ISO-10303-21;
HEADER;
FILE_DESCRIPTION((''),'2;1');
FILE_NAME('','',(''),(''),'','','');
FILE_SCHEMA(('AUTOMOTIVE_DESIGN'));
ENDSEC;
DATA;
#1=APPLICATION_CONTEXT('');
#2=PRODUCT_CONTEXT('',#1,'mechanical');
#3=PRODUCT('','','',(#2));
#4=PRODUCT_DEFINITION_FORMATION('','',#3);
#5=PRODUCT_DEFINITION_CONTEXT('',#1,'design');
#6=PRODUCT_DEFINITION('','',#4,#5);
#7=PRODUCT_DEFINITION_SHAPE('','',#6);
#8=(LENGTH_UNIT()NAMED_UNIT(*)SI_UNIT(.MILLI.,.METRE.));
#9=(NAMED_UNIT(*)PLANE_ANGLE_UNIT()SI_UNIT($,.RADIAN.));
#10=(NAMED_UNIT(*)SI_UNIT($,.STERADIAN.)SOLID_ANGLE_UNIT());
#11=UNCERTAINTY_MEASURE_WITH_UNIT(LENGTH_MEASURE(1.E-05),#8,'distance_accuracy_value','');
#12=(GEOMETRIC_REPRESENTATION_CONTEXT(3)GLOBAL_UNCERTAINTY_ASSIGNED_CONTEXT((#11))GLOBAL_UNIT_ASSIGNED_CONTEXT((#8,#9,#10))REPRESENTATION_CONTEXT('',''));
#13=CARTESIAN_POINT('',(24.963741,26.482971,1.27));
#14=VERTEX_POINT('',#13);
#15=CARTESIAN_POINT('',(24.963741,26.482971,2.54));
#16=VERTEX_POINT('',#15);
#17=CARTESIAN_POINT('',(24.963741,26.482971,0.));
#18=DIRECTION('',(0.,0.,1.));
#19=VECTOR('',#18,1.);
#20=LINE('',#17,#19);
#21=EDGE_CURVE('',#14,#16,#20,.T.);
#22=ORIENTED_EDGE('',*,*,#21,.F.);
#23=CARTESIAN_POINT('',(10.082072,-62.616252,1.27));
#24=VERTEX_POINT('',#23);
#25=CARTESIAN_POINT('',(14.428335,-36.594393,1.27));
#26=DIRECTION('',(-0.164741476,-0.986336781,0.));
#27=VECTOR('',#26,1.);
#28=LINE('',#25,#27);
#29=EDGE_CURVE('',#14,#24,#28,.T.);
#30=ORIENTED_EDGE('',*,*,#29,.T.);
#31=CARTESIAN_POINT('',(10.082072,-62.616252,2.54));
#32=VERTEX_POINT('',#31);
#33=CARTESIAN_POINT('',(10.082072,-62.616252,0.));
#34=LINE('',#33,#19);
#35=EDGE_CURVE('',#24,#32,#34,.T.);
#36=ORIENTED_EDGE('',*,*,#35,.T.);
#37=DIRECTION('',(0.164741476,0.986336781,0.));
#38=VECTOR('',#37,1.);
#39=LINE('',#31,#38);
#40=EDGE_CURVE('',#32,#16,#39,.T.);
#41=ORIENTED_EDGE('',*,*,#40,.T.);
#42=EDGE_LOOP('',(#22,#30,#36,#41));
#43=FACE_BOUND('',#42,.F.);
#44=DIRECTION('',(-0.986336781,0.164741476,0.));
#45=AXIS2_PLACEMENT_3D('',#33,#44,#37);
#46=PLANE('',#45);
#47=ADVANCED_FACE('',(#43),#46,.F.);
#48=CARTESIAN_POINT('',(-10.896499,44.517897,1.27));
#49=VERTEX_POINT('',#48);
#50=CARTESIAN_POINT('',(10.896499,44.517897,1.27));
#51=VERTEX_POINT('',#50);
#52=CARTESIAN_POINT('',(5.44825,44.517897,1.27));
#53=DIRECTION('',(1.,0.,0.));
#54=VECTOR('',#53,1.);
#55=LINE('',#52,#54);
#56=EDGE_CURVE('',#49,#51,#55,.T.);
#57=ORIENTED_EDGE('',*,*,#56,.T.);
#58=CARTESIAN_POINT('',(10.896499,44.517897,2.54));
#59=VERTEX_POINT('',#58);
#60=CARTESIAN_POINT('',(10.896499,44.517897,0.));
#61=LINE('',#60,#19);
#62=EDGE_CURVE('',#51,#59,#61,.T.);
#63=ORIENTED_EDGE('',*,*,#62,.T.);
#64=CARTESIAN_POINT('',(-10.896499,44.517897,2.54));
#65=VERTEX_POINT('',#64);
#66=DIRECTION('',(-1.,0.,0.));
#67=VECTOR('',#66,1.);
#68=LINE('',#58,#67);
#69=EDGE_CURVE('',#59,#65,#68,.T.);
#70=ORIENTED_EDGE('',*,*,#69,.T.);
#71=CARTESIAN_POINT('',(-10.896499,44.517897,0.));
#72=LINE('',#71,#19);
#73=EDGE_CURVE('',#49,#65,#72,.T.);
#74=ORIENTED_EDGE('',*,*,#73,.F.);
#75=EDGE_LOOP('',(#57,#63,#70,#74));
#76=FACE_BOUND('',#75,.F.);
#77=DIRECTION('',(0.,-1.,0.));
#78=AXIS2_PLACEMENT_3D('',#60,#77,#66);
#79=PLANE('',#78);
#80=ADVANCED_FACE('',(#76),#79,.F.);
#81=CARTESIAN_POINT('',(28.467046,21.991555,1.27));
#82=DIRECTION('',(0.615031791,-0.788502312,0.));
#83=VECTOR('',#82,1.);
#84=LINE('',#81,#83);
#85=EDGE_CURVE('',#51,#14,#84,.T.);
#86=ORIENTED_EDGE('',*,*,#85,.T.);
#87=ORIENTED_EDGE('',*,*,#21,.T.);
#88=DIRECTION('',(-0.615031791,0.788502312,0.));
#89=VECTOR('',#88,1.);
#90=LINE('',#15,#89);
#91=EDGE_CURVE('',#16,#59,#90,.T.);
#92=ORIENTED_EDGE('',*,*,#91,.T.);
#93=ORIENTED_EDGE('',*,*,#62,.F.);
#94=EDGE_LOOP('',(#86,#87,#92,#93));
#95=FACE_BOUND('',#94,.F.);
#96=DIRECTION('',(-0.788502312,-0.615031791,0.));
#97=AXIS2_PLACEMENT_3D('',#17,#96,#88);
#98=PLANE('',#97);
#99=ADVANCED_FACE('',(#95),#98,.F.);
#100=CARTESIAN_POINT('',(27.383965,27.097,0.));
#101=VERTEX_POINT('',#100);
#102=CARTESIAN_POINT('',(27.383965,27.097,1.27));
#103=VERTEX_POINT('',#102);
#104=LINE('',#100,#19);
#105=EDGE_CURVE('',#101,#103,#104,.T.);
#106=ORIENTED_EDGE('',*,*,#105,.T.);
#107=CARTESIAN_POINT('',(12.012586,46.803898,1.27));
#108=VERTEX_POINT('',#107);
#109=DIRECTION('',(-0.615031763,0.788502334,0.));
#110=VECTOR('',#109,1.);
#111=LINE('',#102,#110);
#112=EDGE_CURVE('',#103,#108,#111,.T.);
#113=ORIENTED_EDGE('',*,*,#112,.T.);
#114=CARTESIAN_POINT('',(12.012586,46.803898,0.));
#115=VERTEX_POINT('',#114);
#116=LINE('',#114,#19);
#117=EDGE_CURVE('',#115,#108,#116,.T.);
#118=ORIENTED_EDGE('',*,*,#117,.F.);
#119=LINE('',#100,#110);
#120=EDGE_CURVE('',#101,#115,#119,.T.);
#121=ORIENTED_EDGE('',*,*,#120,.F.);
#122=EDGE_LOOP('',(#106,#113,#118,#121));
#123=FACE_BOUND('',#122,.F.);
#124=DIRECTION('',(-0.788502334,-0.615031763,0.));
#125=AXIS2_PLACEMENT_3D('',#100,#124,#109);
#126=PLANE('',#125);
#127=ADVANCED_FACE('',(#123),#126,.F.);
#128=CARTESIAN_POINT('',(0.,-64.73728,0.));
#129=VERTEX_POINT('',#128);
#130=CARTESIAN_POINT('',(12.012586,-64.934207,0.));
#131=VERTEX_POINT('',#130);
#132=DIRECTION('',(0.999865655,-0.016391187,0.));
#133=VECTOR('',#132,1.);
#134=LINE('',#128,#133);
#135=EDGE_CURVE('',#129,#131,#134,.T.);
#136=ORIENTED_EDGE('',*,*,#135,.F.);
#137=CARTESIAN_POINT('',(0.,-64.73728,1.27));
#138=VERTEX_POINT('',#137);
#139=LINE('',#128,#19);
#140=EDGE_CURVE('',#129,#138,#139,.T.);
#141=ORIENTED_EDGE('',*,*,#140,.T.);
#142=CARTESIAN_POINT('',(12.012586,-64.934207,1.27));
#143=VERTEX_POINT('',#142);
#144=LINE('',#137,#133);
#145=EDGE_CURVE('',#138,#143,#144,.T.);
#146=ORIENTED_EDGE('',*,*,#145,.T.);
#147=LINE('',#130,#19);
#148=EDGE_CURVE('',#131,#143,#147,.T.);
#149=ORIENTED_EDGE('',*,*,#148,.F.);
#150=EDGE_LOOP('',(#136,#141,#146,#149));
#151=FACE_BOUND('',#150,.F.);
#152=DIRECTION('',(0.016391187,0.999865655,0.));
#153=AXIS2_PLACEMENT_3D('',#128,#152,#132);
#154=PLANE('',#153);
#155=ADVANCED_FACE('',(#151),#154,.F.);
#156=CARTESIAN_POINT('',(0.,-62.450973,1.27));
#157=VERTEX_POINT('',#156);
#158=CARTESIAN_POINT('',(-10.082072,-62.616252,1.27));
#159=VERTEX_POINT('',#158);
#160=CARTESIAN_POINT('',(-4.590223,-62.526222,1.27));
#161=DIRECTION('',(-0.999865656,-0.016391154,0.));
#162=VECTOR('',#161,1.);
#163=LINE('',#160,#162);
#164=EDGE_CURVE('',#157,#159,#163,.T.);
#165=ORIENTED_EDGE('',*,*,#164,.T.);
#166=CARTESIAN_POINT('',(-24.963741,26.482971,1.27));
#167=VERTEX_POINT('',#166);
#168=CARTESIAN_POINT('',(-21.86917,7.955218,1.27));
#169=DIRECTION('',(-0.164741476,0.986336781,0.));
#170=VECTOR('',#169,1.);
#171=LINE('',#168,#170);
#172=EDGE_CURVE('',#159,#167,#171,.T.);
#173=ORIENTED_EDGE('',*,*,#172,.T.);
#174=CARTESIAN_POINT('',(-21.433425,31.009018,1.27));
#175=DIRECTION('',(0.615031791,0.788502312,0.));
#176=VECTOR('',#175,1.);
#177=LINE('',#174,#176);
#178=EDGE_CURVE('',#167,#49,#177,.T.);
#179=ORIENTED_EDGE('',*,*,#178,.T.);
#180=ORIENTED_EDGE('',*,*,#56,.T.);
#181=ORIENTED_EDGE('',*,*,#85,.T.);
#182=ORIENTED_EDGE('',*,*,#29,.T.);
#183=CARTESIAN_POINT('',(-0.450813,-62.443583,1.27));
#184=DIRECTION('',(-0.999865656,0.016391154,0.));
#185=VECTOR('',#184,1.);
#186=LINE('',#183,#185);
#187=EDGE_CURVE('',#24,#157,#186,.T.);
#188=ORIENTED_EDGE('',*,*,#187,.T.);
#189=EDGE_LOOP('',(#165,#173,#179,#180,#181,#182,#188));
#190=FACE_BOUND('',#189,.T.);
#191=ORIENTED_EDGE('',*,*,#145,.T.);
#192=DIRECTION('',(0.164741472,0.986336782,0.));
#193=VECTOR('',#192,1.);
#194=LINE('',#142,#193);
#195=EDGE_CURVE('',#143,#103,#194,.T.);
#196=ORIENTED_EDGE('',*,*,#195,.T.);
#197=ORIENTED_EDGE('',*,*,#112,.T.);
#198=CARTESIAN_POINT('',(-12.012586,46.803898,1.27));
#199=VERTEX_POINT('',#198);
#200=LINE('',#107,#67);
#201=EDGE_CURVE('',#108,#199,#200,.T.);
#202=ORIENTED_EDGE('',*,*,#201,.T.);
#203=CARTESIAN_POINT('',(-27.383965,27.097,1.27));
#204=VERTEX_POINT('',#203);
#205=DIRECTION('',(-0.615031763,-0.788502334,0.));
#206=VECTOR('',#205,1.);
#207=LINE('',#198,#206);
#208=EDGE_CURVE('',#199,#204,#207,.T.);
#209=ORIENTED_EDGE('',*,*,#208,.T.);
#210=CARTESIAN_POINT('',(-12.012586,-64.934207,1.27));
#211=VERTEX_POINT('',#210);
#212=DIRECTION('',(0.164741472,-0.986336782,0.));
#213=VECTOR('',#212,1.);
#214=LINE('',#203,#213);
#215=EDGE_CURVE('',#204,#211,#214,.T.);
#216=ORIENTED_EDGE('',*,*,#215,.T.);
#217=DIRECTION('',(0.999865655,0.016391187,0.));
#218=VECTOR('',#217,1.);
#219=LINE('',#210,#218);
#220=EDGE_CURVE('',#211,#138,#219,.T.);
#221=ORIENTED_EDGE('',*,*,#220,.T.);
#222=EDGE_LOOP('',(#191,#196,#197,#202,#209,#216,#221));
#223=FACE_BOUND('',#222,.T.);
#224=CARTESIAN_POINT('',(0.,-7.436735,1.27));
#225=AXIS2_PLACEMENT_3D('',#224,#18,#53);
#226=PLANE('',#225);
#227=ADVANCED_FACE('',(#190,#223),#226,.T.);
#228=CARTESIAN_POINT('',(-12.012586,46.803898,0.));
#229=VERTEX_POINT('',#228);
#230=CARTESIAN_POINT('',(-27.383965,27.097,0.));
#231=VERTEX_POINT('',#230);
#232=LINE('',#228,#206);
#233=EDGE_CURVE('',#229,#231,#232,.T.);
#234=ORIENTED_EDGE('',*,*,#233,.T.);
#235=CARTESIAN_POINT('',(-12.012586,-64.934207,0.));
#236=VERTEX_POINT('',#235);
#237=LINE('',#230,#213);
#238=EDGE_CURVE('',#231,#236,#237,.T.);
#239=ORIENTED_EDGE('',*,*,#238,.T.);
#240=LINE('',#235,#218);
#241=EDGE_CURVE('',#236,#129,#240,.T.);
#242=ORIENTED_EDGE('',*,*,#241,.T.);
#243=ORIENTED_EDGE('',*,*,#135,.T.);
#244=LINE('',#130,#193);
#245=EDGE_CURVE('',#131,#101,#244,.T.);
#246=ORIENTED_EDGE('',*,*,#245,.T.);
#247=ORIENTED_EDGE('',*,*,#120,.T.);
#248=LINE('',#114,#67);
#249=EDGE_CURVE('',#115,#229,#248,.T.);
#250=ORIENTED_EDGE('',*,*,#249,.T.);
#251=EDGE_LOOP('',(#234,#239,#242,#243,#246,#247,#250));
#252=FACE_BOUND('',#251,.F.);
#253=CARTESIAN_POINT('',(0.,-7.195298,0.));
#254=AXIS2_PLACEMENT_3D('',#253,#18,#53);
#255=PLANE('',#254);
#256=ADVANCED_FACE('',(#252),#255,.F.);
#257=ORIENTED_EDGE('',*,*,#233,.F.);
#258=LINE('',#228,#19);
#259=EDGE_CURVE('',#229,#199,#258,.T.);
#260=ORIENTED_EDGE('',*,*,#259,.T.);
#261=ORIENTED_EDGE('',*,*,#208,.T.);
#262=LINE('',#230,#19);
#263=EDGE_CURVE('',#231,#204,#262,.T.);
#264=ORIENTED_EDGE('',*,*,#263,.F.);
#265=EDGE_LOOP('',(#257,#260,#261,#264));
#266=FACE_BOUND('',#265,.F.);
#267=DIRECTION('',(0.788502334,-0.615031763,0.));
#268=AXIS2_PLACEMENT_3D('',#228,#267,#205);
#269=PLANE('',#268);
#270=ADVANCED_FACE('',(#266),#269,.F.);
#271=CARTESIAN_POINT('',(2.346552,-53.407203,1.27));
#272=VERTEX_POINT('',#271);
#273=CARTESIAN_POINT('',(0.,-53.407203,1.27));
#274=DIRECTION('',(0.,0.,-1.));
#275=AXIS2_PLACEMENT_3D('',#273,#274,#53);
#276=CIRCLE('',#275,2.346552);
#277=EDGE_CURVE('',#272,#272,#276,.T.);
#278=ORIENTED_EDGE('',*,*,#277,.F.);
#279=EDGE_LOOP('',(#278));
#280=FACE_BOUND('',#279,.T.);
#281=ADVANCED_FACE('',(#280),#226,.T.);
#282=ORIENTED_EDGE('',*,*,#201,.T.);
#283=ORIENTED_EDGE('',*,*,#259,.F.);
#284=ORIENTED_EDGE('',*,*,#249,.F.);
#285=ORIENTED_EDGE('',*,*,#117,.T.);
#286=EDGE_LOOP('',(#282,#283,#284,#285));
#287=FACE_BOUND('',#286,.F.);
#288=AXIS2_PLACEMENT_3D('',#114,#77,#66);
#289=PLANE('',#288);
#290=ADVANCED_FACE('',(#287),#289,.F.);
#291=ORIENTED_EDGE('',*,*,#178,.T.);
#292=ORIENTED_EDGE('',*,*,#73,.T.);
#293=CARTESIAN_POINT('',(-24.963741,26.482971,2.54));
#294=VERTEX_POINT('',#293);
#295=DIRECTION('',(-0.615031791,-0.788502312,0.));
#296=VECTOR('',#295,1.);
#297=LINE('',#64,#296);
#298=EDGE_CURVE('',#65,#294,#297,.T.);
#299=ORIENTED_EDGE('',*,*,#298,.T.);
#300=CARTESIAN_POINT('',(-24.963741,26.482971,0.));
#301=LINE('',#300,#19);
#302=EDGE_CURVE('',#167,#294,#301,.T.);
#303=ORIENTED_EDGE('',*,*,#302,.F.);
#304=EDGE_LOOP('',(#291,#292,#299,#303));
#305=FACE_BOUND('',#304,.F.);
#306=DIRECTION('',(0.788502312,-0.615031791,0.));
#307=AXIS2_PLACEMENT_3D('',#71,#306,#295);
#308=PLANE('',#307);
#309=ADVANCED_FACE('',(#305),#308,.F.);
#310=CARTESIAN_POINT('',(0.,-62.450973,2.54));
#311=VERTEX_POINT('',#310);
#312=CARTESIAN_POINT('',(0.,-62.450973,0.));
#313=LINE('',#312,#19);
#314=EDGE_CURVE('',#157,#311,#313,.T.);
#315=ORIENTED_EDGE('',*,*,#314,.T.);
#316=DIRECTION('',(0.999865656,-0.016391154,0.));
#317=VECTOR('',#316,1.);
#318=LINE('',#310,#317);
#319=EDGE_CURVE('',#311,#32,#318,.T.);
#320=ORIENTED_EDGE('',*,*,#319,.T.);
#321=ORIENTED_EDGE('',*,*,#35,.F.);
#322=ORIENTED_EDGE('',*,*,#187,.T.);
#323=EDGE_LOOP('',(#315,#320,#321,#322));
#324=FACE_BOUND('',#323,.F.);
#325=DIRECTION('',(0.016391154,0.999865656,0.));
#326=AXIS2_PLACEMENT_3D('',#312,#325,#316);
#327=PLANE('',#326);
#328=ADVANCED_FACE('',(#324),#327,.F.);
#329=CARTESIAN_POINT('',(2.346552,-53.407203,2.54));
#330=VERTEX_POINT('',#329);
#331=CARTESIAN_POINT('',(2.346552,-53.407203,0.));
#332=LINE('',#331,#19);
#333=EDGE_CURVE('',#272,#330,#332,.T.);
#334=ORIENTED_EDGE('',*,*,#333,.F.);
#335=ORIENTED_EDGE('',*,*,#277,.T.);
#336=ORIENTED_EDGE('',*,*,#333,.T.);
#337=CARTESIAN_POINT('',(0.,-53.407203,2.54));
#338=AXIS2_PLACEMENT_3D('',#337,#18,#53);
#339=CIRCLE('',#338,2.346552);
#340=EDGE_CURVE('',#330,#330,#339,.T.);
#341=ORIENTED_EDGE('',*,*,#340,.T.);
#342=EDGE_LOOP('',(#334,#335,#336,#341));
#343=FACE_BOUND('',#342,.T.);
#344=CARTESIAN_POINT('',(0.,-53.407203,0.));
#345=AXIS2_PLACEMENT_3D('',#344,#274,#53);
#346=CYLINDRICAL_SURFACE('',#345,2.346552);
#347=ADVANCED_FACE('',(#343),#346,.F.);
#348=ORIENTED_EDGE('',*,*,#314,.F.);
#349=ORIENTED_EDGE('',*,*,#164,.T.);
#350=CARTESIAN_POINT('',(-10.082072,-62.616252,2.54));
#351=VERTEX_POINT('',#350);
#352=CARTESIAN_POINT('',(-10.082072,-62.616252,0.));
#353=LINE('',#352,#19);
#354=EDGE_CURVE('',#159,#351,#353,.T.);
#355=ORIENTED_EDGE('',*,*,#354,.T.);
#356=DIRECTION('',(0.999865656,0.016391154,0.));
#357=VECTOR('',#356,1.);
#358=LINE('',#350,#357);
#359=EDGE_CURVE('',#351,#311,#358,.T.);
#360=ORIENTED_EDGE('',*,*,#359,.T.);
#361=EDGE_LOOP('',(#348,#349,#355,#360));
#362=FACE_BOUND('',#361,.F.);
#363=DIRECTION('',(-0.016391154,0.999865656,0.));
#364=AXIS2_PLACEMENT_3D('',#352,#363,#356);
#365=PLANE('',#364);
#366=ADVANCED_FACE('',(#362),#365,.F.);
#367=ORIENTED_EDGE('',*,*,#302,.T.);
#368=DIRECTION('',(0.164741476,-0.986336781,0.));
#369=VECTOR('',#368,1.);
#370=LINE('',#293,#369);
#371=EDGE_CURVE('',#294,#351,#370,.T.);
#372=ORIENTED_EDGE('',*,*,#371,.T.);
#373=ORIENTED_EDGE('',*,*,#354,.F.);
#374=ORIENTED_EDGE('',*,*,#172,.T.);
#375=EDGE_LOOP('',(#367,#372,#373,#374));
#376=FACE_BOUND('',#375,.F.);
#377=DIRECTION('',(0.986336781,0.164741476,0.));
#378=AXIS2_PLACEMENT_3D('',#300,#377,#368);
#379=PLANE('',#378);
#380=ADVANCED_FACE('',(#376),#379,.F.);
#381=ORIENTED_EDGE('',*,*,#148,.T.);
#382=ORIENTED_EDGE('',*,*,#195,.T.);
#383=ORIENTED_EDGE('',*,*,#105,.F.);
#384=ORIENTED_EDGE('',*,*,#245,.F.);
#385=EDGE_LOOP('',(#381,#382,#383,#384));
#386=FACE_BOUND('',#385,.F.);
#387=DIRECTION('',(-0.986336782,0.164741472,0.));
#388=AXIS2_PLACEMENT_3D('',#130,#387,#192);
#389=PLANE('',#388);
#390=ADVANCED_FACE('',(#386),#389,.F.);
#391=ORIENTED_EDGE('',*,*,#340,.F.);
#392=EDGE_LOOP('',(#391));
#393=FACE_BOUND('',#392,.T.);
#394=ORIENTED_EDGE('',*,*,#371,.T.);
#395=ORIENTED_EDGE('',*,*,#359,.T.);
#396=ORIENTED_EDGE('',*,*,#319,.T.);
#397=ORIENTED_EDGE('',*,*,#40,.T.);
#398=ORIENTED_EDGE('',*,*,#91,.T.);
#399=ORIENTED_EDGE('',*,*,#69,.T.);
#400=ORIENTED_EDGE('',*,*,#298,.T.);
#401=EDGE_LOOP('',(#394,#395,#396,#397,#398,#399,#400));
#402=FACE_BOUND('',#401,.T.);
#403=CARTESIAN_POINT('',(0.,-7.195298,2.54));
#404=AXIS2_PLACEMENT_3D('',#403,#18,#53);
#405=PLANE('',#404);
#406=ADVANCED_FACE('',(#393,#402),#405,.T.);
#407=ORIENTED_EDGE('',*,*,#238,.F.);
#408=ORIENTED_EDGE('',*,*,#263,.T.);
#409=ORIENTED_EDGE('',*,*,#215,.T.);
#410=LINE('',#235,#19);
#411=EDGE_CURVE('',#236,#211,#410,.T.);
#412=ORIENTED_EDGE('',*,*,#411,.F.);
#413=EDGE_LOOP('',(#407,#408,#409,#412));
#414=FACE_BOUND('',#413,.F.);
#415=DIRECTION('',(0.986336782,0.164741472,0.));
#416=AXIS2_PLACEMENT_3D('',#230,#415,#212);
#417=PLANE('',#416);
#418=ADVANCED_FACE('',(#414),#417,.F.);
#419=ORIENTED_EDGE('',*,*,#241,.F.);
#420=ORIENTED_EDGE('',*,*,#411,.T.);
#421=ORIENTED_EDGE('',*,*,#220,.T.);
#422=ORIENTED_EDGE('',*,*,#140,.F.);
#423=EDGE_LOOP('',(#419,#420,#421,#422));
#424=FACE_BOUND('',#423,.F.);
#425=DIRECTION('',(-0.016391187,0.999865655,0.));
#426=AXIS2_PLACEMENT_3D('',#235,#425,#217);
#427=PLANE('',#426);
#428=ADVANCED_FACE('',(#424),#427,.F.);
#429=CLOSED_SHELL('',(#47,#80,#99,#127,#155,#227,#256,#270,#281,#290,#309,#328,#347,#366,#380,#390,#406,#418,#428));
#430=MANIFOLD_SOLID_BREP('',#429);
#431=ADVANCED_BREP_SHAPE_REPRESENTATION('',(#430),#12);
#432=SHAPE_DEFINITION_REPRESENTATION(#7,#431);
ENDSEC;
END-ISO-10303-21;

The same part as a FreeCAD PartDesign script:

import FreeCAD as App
import Part
import Sketcher

V = App.Vector
Q = App.Units.Quantity

doc = App.newDocument("Part")
body = doc.addObject("PartDesign::Body", "Body")

# Sketch on XY plane
sketch1 = doc.addObject("Sketcher::SketchObject", "Sketch")
body.addObject(sketch1)
sketch1.AttachmentSupport = (doc.XY_Plane, [""])
sketch1.MapMode = "FlatFace"
sketch1.addGeometry(Part.LineSegment(V(12, 47, 0), V(-12, 47, 0)), False)
sketch1.addGeometry(Part.LineSegment(V(-12, 47, 0), V(-27, 27, 0)), False)
sketch1.addGeometry(Part.LineSegment(V(-27, 27, 0), V(-12, -65, 0)), False)
sketch1.addGeometry(Part.LineSegment(V(-12, -65, 0), V(0, -65, 0)), False)
sketch1.addGeometry(Part.LineSegment(V(0, -65, 0), V(12, -65, 0)), False)
sketch1.addGeometry(Part.LineSegment(V(12, -65, 0), V(27, 27, 0)), False)
sketch1.addGeometry(Part.LineSegment(V(27, 27, 0), V(12, 47, 0)), False)
sketch1.addConstraint(Sketcher.Constraint("Coincident", 0, 2, 1, 1))
sketch1.addConstraint(Sketcher.Constraint("Coincident", 1, 2, 2, 1))
sketch1.addConstraint(Sketcher.Constraint("Coincident", 2, 2, 3, 1))
sketch1.addConstraint(Sketcher.Constraint("Coincident", 3, 2, 4, 1))
sketch1.addConstraint(Sketcher.Constraint("Coincident", 4, 2, 5, 1))
sketch1.addConstraint(Sketcher.Constraint("Coincident", 5, 2, 6, 1))
sketch1.addConstraint(Sketcher.Constraint("Coincident", 6, 2, 0, 1))
sketch1.addConstraint(Sketcher.Constraint("Horizontal", 0))
sketch1.addConstraint(Sketcher.Constraint("Symmetric", 2, 2, 4, 2, -2))
sketch1.addConstraint(Sketcher.Constraint("Symmetric", 1, 2, 5, 2, -2))
sketch1.addConstraint(Sketcher.Constraint("PointOnObject", 3, 2, -2))
sketch1.addConstraint(Sketcher.Constraint("Vertical", 0, 2, 2, 2))
sketch1.addConstraint(Sketcher.Constraint("Vertical", 4, 2, 6, 2))
sketch1.addConstraint(Sketcher.Constraint("Distance", 3, Q("0.473 in")))
sketch1.addConstraint(Sketcher.Constraint("DistanceY", -1, 1, 1, 2, Q("27.097 mm")))
sketch1.addConstraint(Sketcher.Constraint("Distance", 1, Q("24.992821 mm")))
sketch1.addConstraint(Sketcher.Constraint("Distance", 2, Q("93.306068 mm")))
sketch1.addConstraint(Sketcher.Constraint("DistanceX", 0, 2, 0, 1, Q("24.025172 mm")))
sketch1.addConstraint(Sketcher.Constraint("DistanceY", 3, 2, -1, 1, Q("64.73728 mm")))
pad1 = doc.addObject("PartDesign::Pad", "Pad")
body.addObject(pad1)
pad1.Profile = sketch1
pad1.Length = Q("0.05 in")

# Sketch on XY plane
sketch2 = doc.addObject("Sketcher::SketchObject", "Sketch001")
body.addObject(sketch2)
sketch2.AttachmentSupport = (doc.XY_Plane, [""])
sketch2.MapMode = "FlatFace"
sketch2.addGeometry(Part.LineSegment(V(0, -62.5, 0), V(10.1, -62.6, 0)), False)
sketch2.addGeometry(Part.LineSegment(V(10.1, -62.6, 0), V(25, 26.5, 0)), False)
sketch2.addGeometry(Part.LineSegment(V(25, 26.5, 0), V(10.9, 44.5, 0)), False)
sketch2.addGeometry(Part.LineSegment(V(10.9, 44.5, 0), V(-10.9, 44.5, 0)), False)
sketch2.addGeometry(Part.LineSegment(V(-10.9, 44.5, 0), V(-25, 26.5, 0)), False)
sketch2.addGeometry(Part.LineSegment(V(-25, 26.5, 0), V(-10.1, -62.6, 0)), False)
sketch2.addGeometry(Part.LineSegment(V(-10.1, -62.6, 0), V(0, -62.5, 0)), False)
sketch2.addGeometry(Part.Circle(V(0, -53.4, 0), V(0, 0, 1), 2.3), False)
sketch2.addConstraint(Sketcher.Constraint("Coincident", 0, 2, 1, 1))
sketch2.addConstraint(Sketcher.Constraint("Coincident", 1, 2, 2, 1))
sketch2.addConstraint(Sketcher.Constraint("Coincident", 2, 2, 3, 1))
sketch2.addConstraint(Sketcher.Constraint("Coincident", 3, 2, 4, 1))
sketch2.addConstraint(Sketcher.Constraint("Coincident", 4, 2, 5, 1))
sketch2.addConstraint(Sketcher.Constraint("Coincident", 5, 2, 6, 1))
sketch2.addConstraint(Sketcher.Constraint("Coincident", 6, 2, 0, 1))
sketch2.addConstraint(Sketcher.Constraint("Horizontal", 3))
sketch2.addConstraint(Sketcher.Constraint("Symmetric", 1, 2, 4, 2, -2))
sketch2.addConstraint(Sketcher.Constraint("Symmetric", 0, 2, 5, 2, -2))
sketch2.addConstraint(Sketcher.Constraint("PointOnObject", 7, 3, -2))
sketch2.addConstraint(Sketcher.Constraint("PointOnObject", 6, 2, -2))
sketch2.addConstraint(Sketcher.Constraint("Equal", 2, 4))
sketch2.addConstraint(Sketcher.Constraint("Diameter", 7, Q("4.693104 mm")))
sketch2.addConstraint(Sketcher.Constraint("DistanceX", 3, 2, 3, 1, Q("21.792998 mm")))
sketch2.addConstraint(Sketcher.Constraint("DistanceY", 7, 3, 2, 2, Q("97.9251 mm")))
sketch2.addConstraint(Sketcher.Constraint("Distance", 1, Q("90.333469 mm")))
sketch2.addConstraint(Sketcher.Constraint("Distance", 2, Q("22.872382 mm")))
sketch2.addConstraint(Sketcher.Constraint("DistanceX", -1, 1, 1, 2, Q("24.963741 mm")))
sketch2.addConstraint(Sketcher.Constraint("DistanceY", -1, 1, 1, 2, Q("26.482971 mm")))
sketch2.addConstraint(Sketcher.Constraint("DistanceY", 0, 2, 7, 3, Q("9.209049 mm")))
sketch2.addConstraint(Sketcher.Constraint("DistanceY", 6, 2, 7, 3, Q("9.04377 mm")))
pad2 = doc.addObject("PartDesign::Pad", "Pad001")
body.addObject(pad2)
pad2.Profile = sketch2
pad2.Length = Q("0.1 in")

doc.recompute()
